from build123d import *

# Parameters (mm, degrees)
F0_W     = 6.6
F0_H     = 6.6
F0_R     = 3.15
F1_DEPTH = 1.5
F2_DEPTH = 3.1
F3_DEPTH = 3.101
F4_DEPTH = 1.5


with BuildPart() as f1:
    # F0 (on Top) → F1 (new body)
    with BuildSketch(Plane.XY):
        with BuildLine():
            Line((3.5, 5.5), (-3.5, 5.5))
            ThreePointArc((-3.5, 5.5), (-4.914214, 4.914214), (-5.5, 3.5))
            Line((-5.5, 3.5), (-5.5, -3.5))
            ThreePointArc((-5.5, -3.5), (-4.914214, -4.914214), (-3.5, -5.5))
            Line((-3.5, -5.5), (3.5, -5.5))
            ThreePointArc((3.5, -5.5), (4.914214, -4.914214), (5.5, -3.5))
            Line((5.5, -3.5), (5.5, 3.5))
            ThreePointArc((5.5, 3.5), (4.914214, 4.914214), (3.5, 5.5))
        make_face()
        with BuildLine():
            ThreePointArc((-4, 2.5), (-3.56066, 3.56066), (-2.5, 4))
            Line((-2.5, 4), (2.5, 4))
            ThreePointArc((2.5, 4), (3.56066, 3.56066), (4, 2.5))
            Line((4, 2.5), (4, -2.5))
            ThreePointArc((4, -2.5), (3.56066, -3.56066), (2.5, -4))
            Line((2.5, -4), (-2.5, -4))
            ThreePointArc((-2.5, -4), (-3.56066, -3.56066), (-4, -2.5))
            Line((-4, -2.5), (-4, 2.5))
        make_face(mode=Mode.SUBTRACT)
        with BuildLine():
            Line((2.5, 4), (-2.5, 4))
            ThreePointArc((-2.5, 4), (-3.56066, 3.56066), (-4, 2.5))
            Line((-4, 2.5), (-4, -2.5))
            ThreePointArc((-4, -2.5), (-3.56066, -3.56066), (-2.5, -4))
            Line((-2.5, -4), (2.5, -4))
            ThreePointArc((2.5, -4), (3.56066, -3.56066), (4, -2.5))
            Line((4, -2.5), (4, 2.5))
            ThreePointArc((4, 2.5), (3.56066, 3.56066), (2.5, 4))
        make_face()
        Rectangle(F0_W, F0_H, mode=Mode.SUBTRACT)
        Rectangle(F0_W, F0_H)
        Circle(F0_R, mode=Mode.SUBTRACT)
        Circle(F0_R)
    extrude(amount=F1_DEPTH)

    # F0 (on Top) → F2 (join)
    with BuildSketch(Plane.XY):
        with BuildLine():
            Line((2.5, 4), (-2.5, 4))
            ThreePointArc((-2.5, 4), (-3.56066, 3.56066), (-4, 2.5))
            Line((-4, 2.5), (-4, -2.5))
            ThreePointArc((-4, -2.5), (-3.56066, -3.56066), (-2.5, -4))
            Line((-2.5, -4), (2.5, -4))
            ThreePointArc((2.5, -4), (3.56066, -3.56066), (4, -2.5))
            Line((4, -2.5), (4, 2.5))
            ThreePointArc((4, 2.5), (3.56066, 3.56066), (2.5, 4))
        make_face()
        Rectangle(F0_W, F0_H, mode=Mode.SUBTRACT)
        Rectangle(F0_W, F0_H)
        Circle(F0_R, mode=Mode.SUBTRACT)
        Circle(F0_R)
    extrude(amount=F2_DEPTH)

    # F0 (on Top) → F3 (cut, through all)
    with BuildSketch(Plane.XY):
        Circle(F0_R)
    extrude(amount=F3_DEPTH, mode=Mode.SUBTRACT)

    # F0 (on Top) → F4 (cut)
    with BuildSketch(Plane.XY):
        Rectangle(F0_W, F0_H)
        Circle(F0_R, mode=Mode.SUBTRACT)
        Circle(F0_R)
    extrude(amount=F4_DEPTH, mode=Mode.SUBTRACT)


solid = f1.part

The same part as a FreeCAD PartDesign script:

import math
import FreeCAD as App
import Part
import Sketcher

V = App.Vector
Q = App.Units.Quantity


def add_polygon(sketch, points):
    """Adds a closed chain of lines whose ends are joined by coincident constraints."""
    first, n = sketch.GeometryCount, len(points)
    for a, b in zip(points, points[1:] + points[:1]):
        sketch.addGeometry(Part.LineSegment(App.Vector(*a, 0), App.Vector(*b, 0)), False)
    for i in range(n):
        sketch.addConstraint(Sketcher.Constraint("Coincident", first + i, 2, first + (i + 1) % n, 1))

doc = App.newDocument("Part")
body = doc.addObject("PartDesign::Body", "Body")

# Sketch on XY plane
sketch1 = body.newObject("Sketcher::SketchObject", "Sketch")
sketch1.AttachmentSupport = (doc.getObject("XY_Plane"), [""])
sketch1.MapMode = "FlatFace"
sketch1.addGeometry(Part.LineSegment(V(3.5, 5.5, 0), V(-3.5, 5.5, 0)), False)
sketch1.addGeometry(Part.ArcOfCircle(Part.Circle(V(-3.5, 3.5, 0), V(0, 0, 1), 2), math.radians(90), math.radians(180)), False)
sketch1.addGeometry(Part.LineSegment(V(-5.5, 3.5, 0), V(-5.5, -3.5, 0)), False)
sketch1.addGeometry(Part.ArcOfCircle(Part.Circle(V(-3.5, -3.5, 0), V(0, 0, 1), 2), math.radians(180), math.radians(270)), False)
sketch1.addGeometry(Part.LineSegment(V(-3.5, -5.5, 0), V(3.5, -5.5, 0)), False)
sketch1.addGeometry(Part.ArcOfCircle(Part.Circle(V(3.5, -3.5, 0), V(0, 0, 1), 2), math.radians(-90), math.radians(0)), False)
sketch1.addGeometry(Part.LineSegment(V(5.5, -3.5, 0), V(5.5, 3.5, 0)), False)
sketch1.addGeometry(Part.ArcOfCircle(Part.Circle(V(3.5, 3.5, 0), V(0, 0, 1), 2), math.radians(0), math.radians(90)), False)
sketch1.addConstraint(Sketcher.Constraint("Tangent", 0, 2, 1, 1))
sketch1.addConstraint(Sketcher.Constraint("Tangent", 1, 2, 2, 1))
sketch1.addConstraint(Sketcher.Constraint("Tangent", 2, 2, 3, 1))
sketch1.addConstraint(Sketcher.Constraint("Tangent", 3, 2, 4, 1))
sketch1.addConstraint(Sketcher.Constraint("Tangent", 4, 2, 5, 1))
sketch1.addConstraint(Sketcher.Constraint("Tangent", 5, 2, 6, 1))
sketch1.addConstraint(Sketcher.Constraint("Tangent", 6, 2, 7, 1))
sketch1.addConstraint(Sketcher.Constraint("Tangent", 7, 2, 0, 1))
sketch1.addConstraint(Sketcher.Constraint("Horizontal", 0))
sketch1.addConstraint(Sketcher.Constraint("Vertical", 2))
sketch1.addConstraint(Sketcher.Constraint("Horizontal", 4))
sketch1.addConstraint(Sketcher.Constraint("Vertical", 6))
sketch1.addConstraint(Sketcher.Constraint("Equal", 1, 3))
sketch1.addConstraint(Sketcher.Constraint("Equal", 3, 5))
sketch1.addConstraint(Sketcher.Constraint("Equal", 5, 7))
sketch1.addConstraint(Sketcher.Constraint("Symmetric", 1, 3, 5, 3, -1, 1))
sketch1.addConstraint(Sketcher.Constraint("Equal", 4, 2))
sketch1.addConstraint(Sketcher.Constraint("Radius", 1, Q("1.999999 mm")))
sketch1.addConstraint(Sketcher.Constraint("DistanceX", 0, 2, 0, 1, Q("7 mm")))
pad1 = body.newObject("PartDesign::Pad", "Pad")
pad1.Profile = sketch1
pad1.Length = 1.5

# Sketch on XY plane
sketch2 = body.newObject("Sketcher::SketchObject", "Sketch001")
sketch2.AttachmentSupport = (doc.getObject("XY_Plane"), [""])
sketch2.MapMode = "FlatFace"
sketch2.addGeometry(Part.LineSegment(V(2.5, 4, 0), V(-2.5, 4, 0)), False)
sketch2.addGeometry(Part.ArcOfCircle(Part.Circle(V(-2.5, 2.5, 0), V(0, 0, 1), 1.5), math.radians(90), math.radians(180)), False)
sketch2.addGeometry(Part.LineSegment(V(-4, 2.5, 0), V(-4, -2.5, 0)), False)
sketch2.addGeometry(Part.ArcOfCircle(Part.Circle(V(-2.5, -2.5, 0), V(0, 0, 1), 1.5), math.radians(-180), math.radians(-90)), False)
sketch2.addGeometry(Part.LineSegment(V(-2.5, -4, 0), V(2.5, -4, 0)), False)
sketch2.addGeometry(Part.ArcOfCircle(Part.Circle(V(2.5, -2.5, 0), V(0, 0, 1), 1.5), math.radians(-90), math.radians(0)), False)
sketch2.addGeometry(Part.LineSegment(V(4, -2.5, 0), V(4, 2.5, 0)), False)
sketch2.addGeometry(Part.ArcOfCircle(Part.Circle(V(2.5, 2.5, 0), V(0, 0, 1), 1.5), math.radians(0), math.radians(90)), False)
sketch2.addConstraint(Sketcher.Constraint("Tangent", 0, 2, 1, 1))
sketch2.addConstraint(Sketcher.Constraint("Tangent", 1, 2, 2, 1))
sketch2.addConstraint(Sketcher.Constraint("Tangent", 2, 2, 3, 1))
sketch2.addConstraint(Sketcher.Constraint("Tangent", 3, 2, 4, 1))
sketch2.addConstraint(Sketcher.Constraint("Tangent", 4, 2, 5, 1))
sketch2.addConstraint(Sketcher.Constraint("Tangent", 5, 2, 6, 1))
sketch2.addConstraint(Sketcher.Constraint("Tangent", 6, 2, 7, 1))
sketch2.addConstraint(Sketcher.Constraint("Tangent", 7, 2, 0, 1))
sketch2.addConstraint(Sketcher.Constraint("Horizontal", 0))
sketch2.addConstraint(Sketcher.Constraint("Vertical", 2))
sketch2.addConstraint(Sketcher.Constraint("Horizontal", 4))
sketch2.addConstraint(Sketcher.Constraint("Vertical", 6))
sketch2.addConstraint(Sketcher.Constraint("Equal", 1, 3))
sketch2.addConstraint(Sketcher.Constraint("Equal", 3, 5))
sketch2.addConstraint(Sketcher.Constraint("Equal", 5, 7))
sketch2.addConstraint(Sketcher.Constraint("Symmetric", 1, 3, 5, 3, -1, 1))
sketch2.addConstraint(Sketcher.Constraint("Equal", 4, 2))
sketch2.addConstraint(Sketcher.Constraint("Radius", 1, Q("1.500001 mm")))
sketch2.addConstraint(Sketcher.Constraint("DistanceX", 0, 2, 0, 1, Q("5 mm")))
pad2 = body.newObject("PartDesign::Pad", "Pad001")
pad2.Profile = sketch2
pad2.Length = 3.1

# Sketch on XY plane
sketch3 = body.newObject("Sketcher::SketchObject", "Sketch002")
sketch3.AttachmentSupport = (doc.getObject("XY_Plane"), [""])
sketch3.MapMode = "FlatFace"
sketch3.addGeometry(Part.Circle(V(0, 0, 0), V(0, 0, 1), 3.1), False)
sketch3.addConstraint(Sketcher.Constraint("Coincident", 0, 3, -1, 1))
sketch3.addConstraint(Sketcher.Constraint("Diameter", 0, Q("6.3 mm")))
pocket1 = body.newObject("PartDesign::Pocket", "Pocket")
pocket1.Profile = sketch3
pocket1.Type = "ThroughAll"
pocket1.Reversed = True

# Sketch on XY plane
sketch4 = body.newObject("Sketcher::SketchObject", "Sketch003")
sketch4.AttachmentSupport = (doc.getObject("XY_Plane"), [""])
sketch4.MapMode = "FlatFace"
add_polygon(sketch4, [(-3, 3), (-3, -3), (3, -3), (3, 3)])  # lines 0-3
sketch4.addConstraint(Sketcher.Constraint("Vertical", 0))
sketch4.addConstraint(Sketcher.Constraint("Horizontal", 1))
sketch4.addConstraint(Sketcher.Constraint("Vertical", 2))
sketch4.addConstraint(Sketcher.Constraint("Horizontal", 3))
sketch4.addConstraint(Sketcher.Constraint("Symmetric", 0, 2, 2, 2, -1, 1))
sketch4.addConstraint(Sketcher.Constraint("Equal", 3, 0))
sketch4.addConstraint(Sketcher.Constraint("DistanceX", 1, 1, 1, 2, Q("6.6 mm")))
pocket2 = body.newObject("PartDesign::Pocket", "Pocket001")
pocket2.Profile = sketch4
pocket2.Length = 1.5
pocket2.Reversed = True

doc.recompute()
